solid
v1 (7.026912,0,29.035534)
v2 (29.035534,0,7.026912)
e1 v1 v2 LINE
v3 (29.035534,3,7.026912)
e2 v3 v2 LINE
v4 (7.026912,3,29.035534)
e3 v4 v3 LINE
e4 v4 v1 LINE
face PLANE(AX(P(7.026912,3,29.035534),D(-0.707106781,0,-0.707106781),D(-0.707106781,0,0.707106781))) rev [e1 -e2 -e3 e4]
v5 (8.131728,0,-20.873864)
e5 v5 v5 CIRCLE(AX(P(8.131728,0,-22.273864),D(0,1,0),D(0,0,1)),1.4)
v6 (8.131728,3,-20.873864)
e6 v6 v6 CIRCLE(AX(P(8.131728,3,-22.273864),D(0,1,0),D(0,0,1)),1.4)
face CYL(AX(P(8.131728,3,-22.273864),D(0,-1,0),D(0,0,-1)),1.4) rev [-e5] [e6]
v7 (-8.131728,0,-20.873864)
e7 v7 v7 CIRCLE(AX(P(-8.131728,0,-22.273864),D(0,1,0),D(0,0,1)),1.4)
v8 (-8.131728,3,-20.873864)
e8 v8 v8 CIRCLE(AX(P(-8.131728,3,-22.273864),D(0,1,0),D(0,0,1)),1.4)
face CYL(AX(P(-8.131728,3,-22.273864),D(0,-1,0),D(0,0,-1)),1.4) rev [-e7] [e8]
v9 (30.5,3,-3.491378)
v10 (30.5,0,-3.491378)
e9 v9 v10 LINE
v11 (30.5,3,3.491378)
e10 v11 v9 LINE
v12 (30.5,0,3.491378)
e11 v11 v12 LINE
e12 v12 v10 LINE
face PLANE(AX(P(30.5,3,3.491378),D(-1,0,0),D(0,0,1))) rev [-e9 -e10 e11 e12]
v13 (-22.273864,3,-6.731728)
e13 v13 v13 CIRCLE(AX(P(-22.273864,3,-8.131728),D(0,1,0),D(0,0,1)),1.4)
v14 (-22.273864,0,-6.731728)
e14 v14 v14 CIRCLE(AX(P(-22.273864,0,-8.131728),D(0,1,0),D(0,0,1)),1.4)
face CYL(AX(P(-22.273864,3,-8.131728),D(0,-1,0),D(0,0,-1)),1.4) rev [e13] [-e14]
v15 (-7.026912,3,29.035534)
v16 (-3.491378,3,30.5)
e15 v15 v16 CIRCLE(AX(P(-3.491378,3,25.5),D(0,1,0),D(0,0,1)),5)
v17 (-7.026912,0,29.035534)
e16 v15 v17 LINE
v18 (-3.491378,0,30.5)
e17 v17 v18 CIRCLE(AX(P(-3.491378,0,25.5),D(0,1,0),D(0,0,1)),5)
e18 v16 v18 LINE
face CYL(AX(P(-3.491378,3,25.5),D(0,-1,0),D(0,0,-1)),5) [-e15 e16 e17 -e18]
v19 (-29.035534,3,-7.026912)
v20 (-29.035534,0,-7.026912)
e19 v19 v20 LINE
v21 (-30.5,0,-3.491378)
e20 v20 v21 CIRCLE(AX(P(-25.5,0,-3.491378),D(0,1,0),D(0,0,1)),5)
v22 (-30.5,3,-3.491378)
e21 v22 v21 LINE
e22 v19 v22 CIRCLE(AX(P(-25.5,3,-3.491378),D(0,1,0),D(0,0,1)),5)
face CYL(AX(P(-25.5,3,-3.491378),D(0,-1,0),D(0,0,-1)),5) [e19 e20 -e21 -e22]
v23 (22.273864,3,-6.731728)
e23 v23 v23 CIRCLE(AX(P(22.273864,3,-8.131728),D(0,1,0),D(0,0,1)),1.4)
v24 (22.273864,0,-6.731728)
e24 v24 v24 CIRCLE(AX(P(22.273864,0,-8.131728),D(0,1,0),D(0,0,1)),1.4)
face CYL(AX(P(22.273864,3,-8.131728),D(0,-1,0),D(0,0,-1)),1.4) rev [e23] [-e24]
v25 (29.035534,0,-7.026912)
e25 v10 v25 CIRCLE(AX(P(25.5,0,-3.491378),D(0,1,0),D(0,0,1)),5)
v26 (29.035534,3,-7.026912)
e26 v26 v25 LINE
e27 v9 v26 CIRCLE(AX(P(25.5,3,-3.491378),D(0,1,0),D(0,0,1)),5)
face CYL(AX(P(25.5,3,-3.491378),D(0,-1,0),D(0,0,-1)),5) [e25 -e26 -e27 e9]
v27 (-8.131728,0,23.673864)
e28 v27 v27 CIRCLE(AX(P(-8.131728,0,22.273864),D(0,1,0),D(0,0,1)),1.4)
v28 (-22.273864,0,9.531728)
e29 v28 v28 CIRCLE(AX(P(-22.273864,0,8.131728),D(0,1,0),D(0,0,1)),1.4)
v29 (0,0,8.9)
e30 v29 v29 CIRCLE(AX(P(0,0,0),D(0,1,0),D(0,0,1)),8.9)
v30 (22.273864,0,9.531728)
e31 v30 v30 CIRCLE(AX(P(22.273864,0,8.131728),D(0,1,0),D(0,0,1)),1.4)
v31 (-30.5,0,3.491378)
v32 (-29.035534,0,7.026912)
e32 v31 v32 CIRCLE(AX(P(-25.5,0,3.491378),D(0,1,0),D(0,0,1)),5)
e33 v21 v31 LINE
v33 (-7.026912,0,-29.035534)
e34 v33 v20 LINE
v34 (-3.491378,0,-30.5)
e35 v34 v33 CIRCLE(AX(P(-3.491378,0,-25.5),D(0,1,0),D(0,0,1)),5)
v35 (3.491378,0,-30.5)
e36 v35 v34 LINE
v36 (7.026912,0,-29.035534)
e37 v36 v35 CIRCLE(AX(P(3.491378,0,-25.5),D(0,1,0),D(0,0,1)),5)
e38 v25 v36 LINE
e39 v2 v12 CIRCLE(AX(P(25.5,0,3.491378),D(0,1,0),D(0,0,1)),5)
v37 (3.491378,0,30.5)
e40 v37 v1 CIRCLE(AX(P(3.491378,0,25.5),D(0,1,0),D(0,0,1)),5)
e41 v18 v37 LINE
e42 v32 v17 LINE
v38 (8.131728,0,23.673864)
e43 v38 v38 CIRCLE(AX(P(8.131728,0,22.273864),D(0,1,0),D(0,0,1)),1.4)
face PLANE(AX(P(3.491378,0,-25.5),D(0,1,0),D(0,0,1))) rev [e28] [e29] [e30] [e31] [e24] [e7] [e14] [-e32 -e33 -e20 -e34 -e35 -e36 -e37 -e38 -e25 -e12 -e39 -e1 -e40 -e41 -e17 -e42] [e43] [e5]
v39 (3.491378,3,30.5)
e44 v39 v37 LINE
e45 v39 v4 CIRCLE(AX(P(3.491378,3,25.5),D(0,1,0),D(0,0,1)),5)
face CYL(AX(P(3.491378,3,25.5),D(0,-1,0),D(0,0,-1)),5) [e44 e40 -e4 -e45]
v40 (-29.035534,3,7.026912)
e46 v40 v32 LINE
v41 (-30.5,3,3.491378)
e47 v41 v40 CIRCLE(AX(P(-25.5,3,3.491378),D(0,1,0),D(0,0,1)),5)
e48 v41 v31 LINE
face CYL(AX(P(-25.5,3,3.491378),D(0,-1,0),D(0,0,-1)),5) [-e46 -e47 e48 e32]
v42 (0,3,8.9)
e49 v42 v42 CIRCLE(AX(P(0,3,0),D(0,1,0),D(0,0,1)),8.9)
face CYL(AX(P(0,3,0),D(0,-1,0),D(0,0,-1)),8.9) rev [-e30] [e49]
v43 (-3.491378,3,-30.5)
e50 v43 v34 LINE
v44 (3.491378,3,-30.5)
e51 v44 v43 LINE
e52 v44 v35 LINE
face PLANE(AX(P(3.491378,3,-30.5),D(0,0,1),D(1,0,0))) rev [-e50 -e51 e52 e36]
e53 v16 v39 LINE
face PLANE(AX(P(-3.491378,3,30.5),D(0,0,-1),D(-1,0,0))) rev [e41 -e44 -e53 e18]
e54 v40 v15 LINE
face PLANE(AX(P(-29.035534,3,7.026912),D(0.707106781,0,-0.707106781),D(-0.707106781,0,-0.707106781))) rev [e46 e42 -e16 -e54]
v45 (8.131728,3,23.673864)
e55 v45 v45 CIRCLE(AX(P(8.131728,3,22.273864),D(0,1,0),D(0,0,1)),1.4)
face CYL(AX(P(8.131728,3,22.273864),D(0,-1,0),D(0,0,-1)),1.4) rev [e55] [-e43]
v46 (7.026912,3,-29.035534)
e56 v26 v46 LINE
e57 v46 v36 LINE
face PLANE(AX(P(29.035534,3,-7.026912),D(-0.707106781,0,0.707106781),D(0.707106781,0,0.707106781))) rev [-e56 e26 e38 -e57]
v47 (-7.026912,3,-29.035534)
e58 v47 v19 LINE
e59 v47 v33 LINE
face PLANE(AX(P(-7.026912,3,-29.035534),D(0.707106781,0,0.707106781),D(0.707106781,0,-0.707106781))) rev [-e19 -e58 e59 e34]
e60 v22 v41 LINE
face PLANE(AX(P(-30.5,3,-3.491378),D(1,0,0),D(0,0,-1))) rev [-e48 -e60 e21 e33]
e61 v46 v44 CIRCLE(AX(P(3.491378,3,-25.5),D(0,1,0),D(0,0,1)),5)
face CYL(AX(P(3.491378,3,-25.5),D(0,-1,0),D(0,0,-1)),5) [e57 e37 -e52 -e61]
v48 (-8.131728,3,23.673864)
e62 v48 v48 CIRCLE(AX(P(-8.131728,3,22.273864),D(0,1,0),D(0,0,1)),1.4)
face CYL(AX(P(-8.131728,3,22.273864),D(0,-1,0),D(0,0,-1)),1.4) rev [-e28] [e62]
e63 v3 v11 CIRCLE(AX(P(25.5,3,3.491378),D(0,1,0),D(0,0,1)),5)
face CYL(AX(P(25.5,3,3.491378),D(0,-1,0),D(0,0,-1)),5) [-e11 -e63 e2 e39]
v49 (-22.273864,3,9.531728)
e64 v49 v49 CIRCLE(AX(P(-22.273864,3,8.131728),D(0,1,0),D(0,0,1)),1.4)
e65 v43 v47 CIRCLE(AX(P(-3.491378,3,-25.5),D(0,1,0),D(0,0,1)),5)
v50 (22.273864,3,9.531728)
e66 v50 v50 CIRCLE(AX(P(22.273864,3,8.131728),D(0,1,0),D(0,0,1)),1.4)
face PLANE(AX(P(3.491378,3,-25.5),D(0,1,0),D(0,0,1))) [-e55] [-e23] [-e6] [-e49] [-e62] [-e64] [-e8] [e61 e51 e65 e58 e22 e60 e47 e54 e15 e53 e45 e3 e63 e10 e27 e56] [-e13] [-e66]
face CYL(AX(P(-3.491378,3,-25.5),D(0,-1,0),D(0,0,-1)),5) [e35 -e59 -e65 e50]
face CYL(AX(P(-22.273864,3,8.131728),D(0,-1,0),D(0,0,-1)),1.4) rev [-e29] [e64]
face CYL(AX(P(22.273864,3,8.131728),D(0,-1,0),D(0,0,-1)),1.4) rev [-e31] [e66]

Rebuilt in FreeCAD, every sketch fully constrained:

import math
import FreeCAD as App
import Part
import Sketcher

V = App.Vector
Q = App.Units.Quantity

doc = App.newDocument("Part")
body = doc.addObject("PartDesign::Body", "Body")

# Sketch on XZ plane
sketch1 = body.newObject("Sketcher::SketchObject", "Sketch")
sketch1.AttachmentSupport = (doc.getObject("XZ_Plane"), [""])
sketch1.MapMode = "FlatFace"
sketch1.addGeometry([
    Part.LineSegment(V(3.5, -30.5, 0), V(-3.5, -30.5, 0)),  # 0
    Part.ArcOfCircle(Part.Circle(V(-3.5, -25.5, 0), V(0, 0, 1), 5), math.radians(-135), math.radians(-90)),  # 1
    Part.LineSegment(V(-7, -29, 0), V(-29, -7, 0)),  # 2
    Part.ArcOfCircle(Part.Circle(V(-25.5, -3.5, 0), V(0, 0, 1), 5), math.radians(180), math.radians(225)),  # 3
    Part.LineSegment(V(-30.5, -3.5, 0), V(-30.5, 3.5, 0)),  # 4
    Part.ArcOfCircle(Part.Circle(V(-25.5, 3.5, 0), V(0, 0, 1), 5), math.radians(135), math.radians(180)),  # 5
    Part.LineSegment(V(-29, 7, 0), V(-7, 29, 0)),  # 6
    Part.ArcOfCircle(Part.Circle(V(-3.5, 25.5, 0), V(0, 0, 1), 5), math.radians(90), math.radians(135)),  # 7
    Part.LineSegment(V(-3.5, 30.5, 0), V(3.5, 30.5, 0)),  # 8
    Part.ArcOfCircle(Part.Circle(V(3.5, 25.5, 0), V(0, 0, 1), 5), math.radians(45), math.radians(90)),  # 9
    Part.LineSegment(V(7, 29, 0), V(29, 7, 0)),  # 10
    Part.ArcOfCircle(Part.Circle(V(25.5, 3.5, 0), V(0, 0, 1), 5), math.radians(0), math.radians(45)),  # 11
    Part.LineSegment(V(30.5, 3.5, 0), V(30.5, -3.5, 0)),  # 12
    Part.ArcOfCircle(Part.Circle(V(25.5, -3.5, 0), V(0, 0, 1), 5), math.radians(-45), math.radians(0)),  # 13
    Part.LineSegment(V(29, -7, 0), V(7, -29, 0)),  # 14
    Part.ArcOfCircle(Part.Circle(V(3.5, -25.5, 0), V(0, 0, 1), 5), math.radians(-90), math.radians(-45)),  # 15
    Part.Circle(V(-8.1, 22.3, 0), V(0, 0, 1), 1.4),  # 16
    Part.Circle(V(-22.3, 8.1, 0), V(0, 0, 1), 1.4),  # 17
    Part.Circle(V(8.1, 22.3, 0), V(0, 0, 1), 1.4),  # 18
    Part.Circle(V(22.3, 8.1, 0), V(0, 0, 1), 1.4),  # 19
    Part.Circle(V(-22.3, -8.1, 0), V(0, 0, 1), 1.4),  # 20
    Part.Circle(V(-8.1, -22.3, 0), V(0, 0, 1), 1.4),  # 21
    Part.Circle(V(0, 0, 0), V(0, 0, 1), 8.9),  # 22
    Part.Circle(V(22.3, -8.1, 0), V(0, 0, 1), 1.4),  # 23
    Part.Circle(V(8.1, -22.3, 0), V(0, 0, 1), 1.4),  # 24
], False)
sketch1.addConstraint([
    Sketcher.Constraint("Tangent", 0, 2, 1, 2),
    Sketcher.Constraint("Tangent", 1, 1, 2, 1),
    Sketcher.Constraint("Tangent", 2, 2, 3, 2),
    Sketcher.Constraint("Tangent", 3, 1, 4, 1),
    Sketcher.Constraint("Tangent", 4, 2, 5, 2),
    Sketcher.Constraint("Tangent", 5, 1, 6, 1),
    Sketcher.Constraint("Tangent", 6, 2, 7, 2),
    Sketcher.Constraint("Tangent", 7, 1, 8, 1),
    Sketcher.Constraint("Tangent", 8, 2, 9, 2),
    Sketcher.Constraint("Tangent", 9, 1, 10, 1),
    Sketcher.Constraint("Tangent", 10, 2, 11, 2),
    Sketcher.Constraint("Tangent", 11, 1, 12, 1),
    Sketcher.Constraint("Tangent", 12, 2, 13, 2),
    Sketcher.Constraint("Tangent", 13, 1, 14, 1),
    Sketcher.Constraint("Tangent", 14, 2, 15, 2),
    Sketcher.Constraint("Tangent", 15, 1, 0, 1),
    Sketcher.Constraint("Horizontal", 0),
    Sketcher.Constraint("Vertical", 4),
    Sketcher.Constraint("Horizontal", 8),
    Sketcher.Constraint("Vertical", 12),
    Sketcher.Constraint("Coincident", 22, 3, -1, 1),
    Sketcher.Constraint("Equal", 1, 3),
    Sketcher.Constraint("Equal", 3, 5),
    Sketcher.Constraint("Equal", 5, 7),
    Sketcher.Constraint("Equal", 7, 9),
    Sketcher.Constraint("Equal", 9, 11),
    Sketcher.Constraint("Equal", 11, 13),
    Sketcher.Constraint("Equal", 13, 15),
    Sketcher.Constraint("Equal", 16, 17),
    Sketcher.Constraint("Equal", 17, 18),
    Sketcher.Constraint("Equal", 18, 19),
    Sketcher.Constraint("Equal", 19, 20),
    Sketcher.Constraint("Equal", 20, 21),
    Sketcher.Constraint("Equal", 21, 23),
    Sketcher.Constraint("Equal", 23, 24),
    Sketcher.Constraint("Symmetric", 1, 3, 9, 3, -1, 1),
    Sketcher.Constraint("Symmetric", 3, 3, 11, 3, -1, 1),
    Sketcher.Constraint("Symmetric", 19, 3, 20, 3, -1, 1),
    Sketcher.Constraint("Symmetric", 18, 3, 21, 3, -1, 1),
    Sketcher.Constraint("Symmetric", 17, 3, 23, 3, -1, 1),
    Sketcher.Constraint("Symmetric", 16, 3, 24, 3, -1, 1),
    Sketcher.Constraint("Symmetric", 5, 1, 13, 1, -1, 1),
    Sketcher.Constraint("Symmetric", 16, 3, 18, 3, -2),
    Sketcher.Constraint("Symmetric", 17, 3, 19, 3, -2),
    Sketcher.Constraint("Symmetric", 6, 2, 9, 1, -2),
    Sketcher.Constraint("Perpendicular", 2, 6),
    Sketcher.Constraint("Equal", 8, 4),
    Sketcher.Constraint("Radius", 1, Q("5 mm")),
    Sketcher.Constraint("Diameter", 16, Q("2.8 mm")),
    Sketcher.Constraint("Diameter", 22, Q("17.8 mm")),
    Sketcher.Constraint("DistanceY", 1, 3, 7, 3, Q("51 mm")),
    Sketcher.Constraint("Distance", 2, Q("31.124892 mm")),
    Sketcher.Constraint("DistanceX", 16, 3, 7, 3, Q("4.64035 mm")),
    Sketcher.Constraint("DistanceY", 3, 3, 16, 3, Q("25.765242 mm")),
    Sketcher.Constraint("DistanceY", 5, 3, 17, 3, Q("4.64035 mm")),
    Sketcher.Constraint("DistanceX", 17, 3, 9, 3, Q("25.765242 mm")),
])
pad1 = body.newObject("PartDesign::Pad", "Pad")
pad1.Profile = sketch1
pad1.Length = 3
pad1.Reversed = True

doc.recompute()
